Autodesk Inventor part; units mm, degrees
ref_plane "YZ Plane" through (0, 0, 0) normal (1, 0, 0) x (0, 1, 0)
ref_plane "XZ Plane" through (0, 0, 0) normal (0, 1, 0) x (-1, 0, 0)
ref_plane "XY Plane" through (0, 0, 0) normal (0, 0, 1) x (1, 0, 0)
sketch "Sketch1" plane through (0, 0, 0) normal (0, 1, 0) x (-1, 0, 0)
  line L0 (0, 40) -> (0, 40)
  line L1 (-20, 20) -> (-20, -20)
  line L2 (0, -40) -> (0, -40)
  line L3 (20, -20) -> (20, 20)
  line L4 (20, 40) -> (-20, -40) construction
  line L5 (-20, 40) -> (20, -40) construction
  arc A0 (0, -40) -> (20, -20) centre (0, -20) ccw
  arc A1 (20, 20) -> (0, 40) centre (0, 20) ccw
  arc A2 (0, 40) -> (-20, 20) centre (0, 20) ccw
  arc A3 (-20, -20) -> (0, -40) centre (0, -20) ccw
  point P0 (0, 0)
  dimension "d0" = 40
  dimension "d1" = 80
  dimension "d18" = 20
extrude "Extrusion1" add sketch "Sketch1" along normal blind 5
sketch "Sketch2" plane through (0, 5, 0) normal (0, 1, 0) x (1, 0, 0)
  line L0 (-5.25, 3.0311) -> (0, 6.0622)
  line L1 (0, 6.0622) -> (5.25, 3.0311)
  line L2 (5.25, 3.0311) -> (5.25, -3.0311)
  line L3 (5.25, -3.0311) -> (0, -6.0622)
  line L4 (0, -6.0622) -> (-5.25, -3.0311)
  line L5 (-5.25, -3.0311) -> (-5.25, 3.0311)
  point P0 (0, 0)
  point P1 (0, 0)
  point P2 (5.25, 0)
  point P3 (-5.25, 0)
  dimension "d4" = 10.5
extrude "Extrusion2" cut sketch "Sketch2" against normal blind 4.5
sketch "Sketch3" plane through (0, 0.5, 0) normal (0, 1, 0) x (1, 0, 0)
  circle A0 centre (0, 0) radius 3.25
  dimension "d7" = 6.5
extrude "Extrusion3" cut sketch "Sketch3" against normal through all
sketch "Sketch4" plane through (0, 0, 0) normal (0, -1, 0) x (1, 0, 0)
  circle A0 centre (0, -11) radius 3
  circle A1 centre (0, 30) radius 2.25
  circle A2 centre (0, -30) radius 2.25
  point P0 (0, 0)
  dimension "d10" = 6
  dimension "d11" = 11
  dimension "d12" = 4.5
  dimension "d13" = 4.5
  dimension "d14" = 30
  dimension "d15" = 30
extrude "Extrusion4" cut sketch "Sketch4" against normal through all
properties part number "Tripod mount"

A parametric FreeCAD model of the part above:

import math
import FreeCAD as App
import Part
import Sketcher
Q = App.Units.Quantity


def add_polygon(sketch, points):
    """Adds a closed chain of lines whose ends are joined by coincident constraints."""
    first, n = sketch.GeometryCount, len(points)
    for a, b in zip(points, points[1:] + points[:1]):
        sketch.addGeometry(Part.LineSegment(App.Vector(*a, 0), App.Vector(*b, 0)), False)
    for i in range(n):
        sketch.addConstraint(Sketcher.Constraint("Coincident", first + i, 2, first + (i + 1) % n, 1))

doc = App.newDocument("Part")
body = doc.addObject("PartDesign::Body", "Body")

sketch1 = body.newObject("Sketcher::SketchObject", "Sketch")
sketch1.AttachmentSupport = (doc.getObject("XZ_Plane"), [""])
sketch1.MapMode = "FlatFace"
sketch1.addGeometry([
    Part.ArcOfCircle(Part.Circle(App.Vector(0, 20, 0), App.Vector(0, 0, 1), 20), math.radians(0), math.radians(180)),
    Part.LineSegment(App.Vector(20, 20, 0), App.Vector(20, -20, 0)),
    Part.ArcOfCircle(Part.Circle(App.Vector(0, -20, 0), App.Vector(0, 0, 1), 20), math.radians(180), math.radians(360)),
    Part.LineSegment(App.Vector(-20, -20, 0), App.Vector(-20, 20, 0)),
], False)
sketch1.addConstraint([
    Sketcher.Constraint("Tangent", 0, 1, 1, 1),
    Sketcher.Constraint("Tangent", 1, 2, 2, 2),
    Sketcher.Constraint("Tangent", 2, 1, 3, 1),
    Sketcher.Constraint("Tangent", 3, 2, 0, 2),
    Sketcher.Constraint("Vertical", 1),
    Sketcher.Constraint("Vertical", 3),
    Sketcher.Constraint("Symmetric", 0, 3, 2, 3, -1, 1),
    Sketcher.Constraint("Radius", 0, Q("20 mm")),
    Sketcher.Constraint("DistanceY", 1, 2, 1, 1, Q("40 mm")),
])
pad1 = body.newObject("PartDesign::Pad", "Pad")
pad1.Profile = sketch1
pad1.Length = 5
pad1.Reversed = True

sketch2 = body.newObject("Sketcher::SketchObject", "Sketch001")
sketch2.AttachmentSupport = (doc.getObject("XZ_Plane"), [""])
sketch2.MapMode = "FlatFace"
sketch2.AttachmentOffset = App.Placement(App.Vector(0, 0, -5), App.Rotation())
add_polygon(sketch2, [(0, -6), (-5, -3), (-5, 3), (0, 6), (5, 3), (5, -3)])
sketch2.addConstraint([
    Sketcher.Constraint("Vertical", 1),
    Sketcher.Constraint("Vertical", 4),
    Sketcher.Constraint("Symmetric", 0, 2, 3, 2, -1, 1),
    Sketcher.Constraint("Symmetric", 2, 2, 5, 2, -1, 1),
    Sketcher.Constraint("PointOnObject", 2, 2, -2),
    Sketcher.Constraint("Parallel", 2, 5),
    Sketcher.Constraint("Horizontal", 1, 2, 3, 2),
    Sketcher.Constraint("DistanceX", 1, 2, 3, 2, Q("10.5 mm")),
    Sketcher.Constraint("Angle", 0, Q("150 deg")),
    Sketcher.Constraint("DistanceY", 1, 1, 1, 2, Q("6.0622 mm")),
])
pocket1 = body.newObject("PartDesign::Pocket", "Pocket")
pocket1.Profile = sketch2
pocket1.Length = 4.5
pocket1.Reversed = True

sketch3 = body.newObject("Sketcher::SketchObject", "Sketch002")
sketch3.AttachmentSupport = (doc.getObject("XZ_Plane"), [""])
sketch3.MapMode = "FlatFace"
sketch3.AttachmentOffset = App.Placement(App.Vector(0, 0, -0.5), App.Rotation())
sketch3.addGeometry(Part.Circle(App.Vector(0, 0, 0), App.Vector(0, 0, 1), 3.2), False)
sketch3.addConstraint([
    Sketcher.Constraint("Coincident", 0, 3, -1, 1),
    Sketcher.Constraint("Diameter", 0, Q("6.5 mm")),
])
pocket2 = body.newObject("PartDesign::Pocket", "Pocket001")
pocket2.Profile = sketch3
pocket2.Type = "ThroughAll"
pocket2.Reversed = True

sketch4 = body.newObject("Sketcher::SketchObject", "Sketch003")
sketch4.AttachmentSupport = (doc.getObject("XZ_Plane"), [""])
sketch4.MapMode = "FlatFace"
sketch4.addGeometry([
    Part.Circle(App.Vector(0, -11, 0), App.Vector(0, 0, 1), 3),
    Part.Circle(App.Vector(0, 30, 0), App.Vector(0, 0, 1), 2.2),
    Part.Circle(App.Vector(0, -30, 0), App.Vector(0, 0, 1), 2.2),
], False)
sketch4.addConstraint([
    Sketcher.Constraint("Equal", 1, 2),
    Sketcher.Constraint("Symmetric", 1, 3, 2, 3, -1, 1),
    Sketcher.Constraint("PointOnObject", 0, 3, -2),
    Sketcher.Constraint("PointOnObject", 1, 3, -2),
    Sketcher.Constraint("Diameter", 0, Q("6 mm")),
    Sketcher.Constraint("Diameter", 1, Q("4.5 mm")),
    Sketcher.Constraint("DistanceY", 0, 3, -1, 1, Q("11 mm")),
    Sketcher.Constraint("DistanceY", -1, 1, 1, 3, Q("30 mm")),
])
pocket3 = body.newObject("PartDesign::Pocket", "Pocket002")
pocket3.Profile = sketch4
pocket3.Type = "ThroughAll"

doc.recompute()
